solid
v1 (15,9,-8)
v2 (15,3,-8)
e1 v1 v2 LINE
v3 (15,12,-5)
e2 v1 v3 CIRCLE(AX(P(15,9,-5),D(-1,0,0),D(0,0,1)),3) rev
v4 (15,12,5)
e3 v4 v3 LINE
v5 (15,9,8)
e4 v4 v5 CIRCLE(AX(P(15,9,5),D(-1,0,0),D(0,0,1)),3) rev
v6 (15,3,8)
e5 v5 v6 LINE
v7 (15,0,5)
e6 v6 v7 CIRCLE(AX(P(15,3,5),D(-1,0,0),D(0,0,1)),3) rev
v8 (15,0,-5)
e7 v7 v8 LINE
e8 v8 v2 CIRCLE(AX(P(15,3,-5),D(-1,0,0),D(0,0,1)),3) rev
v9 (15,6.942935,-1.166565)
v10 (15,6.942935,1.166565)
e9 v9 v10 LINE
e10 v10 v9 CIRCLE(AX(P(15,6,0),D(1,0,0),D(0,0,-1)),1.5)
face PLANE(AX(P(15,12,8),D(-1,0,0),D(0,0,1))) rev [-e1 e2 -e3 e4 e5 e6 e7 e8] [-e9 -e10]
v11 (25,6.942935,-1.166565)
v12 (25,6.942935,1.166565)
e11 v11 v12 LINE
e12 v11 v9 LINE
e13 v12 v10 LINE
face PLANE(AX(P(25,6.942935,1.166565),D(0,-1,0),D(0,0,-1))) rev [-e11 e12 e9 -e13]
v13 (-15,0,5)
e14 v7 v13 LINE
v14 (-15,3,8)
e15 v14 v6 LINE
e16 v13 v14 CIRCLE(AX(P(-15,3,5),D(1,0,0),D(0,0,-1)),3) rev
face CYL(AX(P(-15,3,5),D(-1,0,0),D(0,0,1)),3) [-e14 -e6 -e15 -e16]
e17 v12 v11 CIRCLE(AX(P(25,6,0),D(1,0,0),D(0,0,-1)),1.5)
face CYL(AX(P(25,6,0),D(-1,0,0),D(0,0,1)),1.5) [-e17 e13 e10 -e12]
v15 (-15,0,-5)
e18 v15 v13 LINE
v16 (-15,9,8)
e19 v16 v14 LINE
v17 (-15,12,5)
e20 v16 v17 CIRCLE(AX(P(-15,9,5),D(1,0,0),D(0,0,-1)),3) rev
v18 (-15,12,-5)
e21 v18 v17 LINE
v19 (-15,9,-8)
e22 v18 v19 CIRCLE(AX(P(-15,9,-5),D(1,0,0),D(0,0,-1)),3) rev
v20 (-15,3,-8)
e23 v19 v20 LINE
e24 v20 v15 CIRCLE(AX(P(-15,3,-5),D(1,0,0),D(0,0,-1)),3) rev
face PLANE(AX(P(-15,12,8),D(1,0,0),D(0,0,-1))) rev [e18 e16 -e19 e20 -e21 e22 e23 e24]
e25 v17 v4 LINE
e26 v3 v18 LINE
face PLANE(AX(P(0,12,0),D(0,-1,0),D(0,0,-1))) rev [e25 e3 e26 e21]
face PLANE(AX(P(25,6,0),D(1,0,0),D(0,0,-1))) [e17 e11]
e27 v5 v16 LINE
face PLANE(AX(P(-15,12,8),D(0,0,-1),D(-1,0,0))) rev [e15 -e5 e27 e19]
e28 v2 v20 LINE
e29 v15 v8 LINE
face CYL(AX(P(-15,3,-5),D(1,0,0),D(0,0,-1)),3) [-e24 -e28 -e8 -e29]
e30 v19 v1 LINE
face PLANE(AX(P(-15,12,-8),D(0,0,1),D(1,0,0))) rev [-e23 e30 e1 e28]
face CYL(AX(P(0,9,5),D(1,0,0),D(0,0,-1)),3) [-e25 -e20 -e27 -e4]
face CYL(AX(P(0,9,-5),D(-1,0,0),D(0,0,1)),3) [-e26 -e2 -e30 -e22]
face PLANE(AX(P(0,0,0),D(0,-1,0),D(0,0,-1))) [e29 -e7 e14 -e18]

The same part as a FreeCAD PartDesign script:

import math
import FreeCAD as App
import Part
import Sketcher
from FreeCAD import Vector


def edges_at(feature, points):
    """Names of the edges that pass closest to the given points."""
    edges = feature.Shape.Edges
    near = lambda p: min(range(len(edges)), key=lambda i: edges[i].distToShape(Part.Vertex(*p))[0])
    return sorted({f"Edge{near(p) + 1}" for p in points})


def add_polygon(sketch, points):
    """Adds a closed chain of lines whose ends are joined by coincident constraints."""
    first, n = sketch.GeometryCount, len(points)
    for a, b in zip(points, points[1:] + points[:1]):
        sketch.addGeometry(Part.LineSegment(App.Vector(*a, 0), App.Vector(*b, 0)), False)
    for i in range(n):
        sketch.addConstraint(Sketcher.Constraint("Coincident", first + i, 2, first + (i + 1) % n, 1))

doc = App.newDocument("Part")
params = doc.addObject("Spreadsheet::Sheet", "Params")
for row, (alias, value) in enumerate([
    ("sketch1_width", "30 mm"),
    ("sketch1_height", "16 mm"),
    ("pad1_length", "12 mm"),
    ("fillet_radius", "3 mm"),
    ("sketch2_radius", "1.5 mm"),
    ("pad2_length", "10 mm"),
], start=1):
    params.set(f"A{row}", alias)
    params.set(f"B{row}", "=" + value)
    params.setAlias(f"B{row}", alias)

body = doc.addObject("PartDesign::Body", "Body")

sketch1 = body.newObject("Sketcher::SketchObject", "Sketch")
sketch1.AttachmentSupport = (doc.getObject("XZ_Plane"), [""])
sketch1.MapMode = "FlatFace"
add_polygon(sketch1, [(-15, -8), (-15, 8), (15, 8), (15, -8)])
sketch1.addConstraint([
    Sketcher.Constraint("Vertical", 0),
    Sketcher.Constraint("Horizontal", 1),
    Sketcher.Constraint("Vertical", 2),
    Sketcher.Constraint("Horizontal", 3),
    Sketcher.Constraint("Symmetric", 0, 2, 2, 2, -1, 1),
    Sketcher.Constraint("DistanceX", 1, 1, 1, 2, 30.0),
    Sketcher.Constraint("DistanceY", 0, 1, 0, 2, 16.0),
])
sketch1.setExpression("Constraints[9]", "Params.sketch1_width")
sketch1.setExpression("Constraints[10]", "Params.sketch1_height")
pad1 = body.newObject("PartDesign::Pad", "Pad")
pad1.Profile = sketch1
pad1.setExpression("Length", "Params.pad1_length")
pad1.Reversed = True
doc.recompute()

fillet = body.newObject("PartDesign::Fillet", "Fillet")
fillet.Base = (pad1, edges_at(pad1, [
    (0, 12, 8),
    (0, 0, 8),
    (0, 0, -8),
    (0, 12, -8),
]))
fillet.setExpression("Radius", "Params.fillet_radius")

sketch2 = body.newObject("Sketcher::SketchObject", "Sketch001")
sketch2.AttachmentSupport = (doc.getObject("YZ_Plane"), [""])
sketch2.MapMode = "FlatFace"
sketch2.AttachmentOffset = App.Placement(Vector(0, 0, 15), App.Rotation())
sketch2.addGeometry([
    Part.LineSegment(Vector(6.942935, -1.166565, 0), Vector(6.942935, 1.166565, 0)),
    Part.ArcOfCircle(Part.Circle(Vector(6, 0, 0), Vector(0, 0, 1), 1.5), math.radians(51.051391), math.radians(308.948609)),
], False)
sketch2.addConstraint([
    Sketcher.Constraint("Coincident", 0, 1, 1, 2),
    Sketcher.Constraint("Coincident", 1, 1, 0, 2),
    Sketcher.Constraint("Vertical", 0),
    Sketcher.Constraint("PointOnObject", 1, 3, -1),
    Sketcher.Constraint("Radius", 1, 1.5),
    Sketcher.Constraint("DistanceX", -1, 1, 1, 3, 6.0),
    Sketcher.Constraint("DistanceY", 0, 1, 0, 2, 2.33313),
])
sketch2.setExpression("Constraints[4]", "Params.sketch2_radius")
pad2 = body.newObject("PartDesign::Pad", "Pad001")
pad2.Profile = sketch2
pad2.setExpression("Length", "Params.pad2_length")

doc.recompute()
